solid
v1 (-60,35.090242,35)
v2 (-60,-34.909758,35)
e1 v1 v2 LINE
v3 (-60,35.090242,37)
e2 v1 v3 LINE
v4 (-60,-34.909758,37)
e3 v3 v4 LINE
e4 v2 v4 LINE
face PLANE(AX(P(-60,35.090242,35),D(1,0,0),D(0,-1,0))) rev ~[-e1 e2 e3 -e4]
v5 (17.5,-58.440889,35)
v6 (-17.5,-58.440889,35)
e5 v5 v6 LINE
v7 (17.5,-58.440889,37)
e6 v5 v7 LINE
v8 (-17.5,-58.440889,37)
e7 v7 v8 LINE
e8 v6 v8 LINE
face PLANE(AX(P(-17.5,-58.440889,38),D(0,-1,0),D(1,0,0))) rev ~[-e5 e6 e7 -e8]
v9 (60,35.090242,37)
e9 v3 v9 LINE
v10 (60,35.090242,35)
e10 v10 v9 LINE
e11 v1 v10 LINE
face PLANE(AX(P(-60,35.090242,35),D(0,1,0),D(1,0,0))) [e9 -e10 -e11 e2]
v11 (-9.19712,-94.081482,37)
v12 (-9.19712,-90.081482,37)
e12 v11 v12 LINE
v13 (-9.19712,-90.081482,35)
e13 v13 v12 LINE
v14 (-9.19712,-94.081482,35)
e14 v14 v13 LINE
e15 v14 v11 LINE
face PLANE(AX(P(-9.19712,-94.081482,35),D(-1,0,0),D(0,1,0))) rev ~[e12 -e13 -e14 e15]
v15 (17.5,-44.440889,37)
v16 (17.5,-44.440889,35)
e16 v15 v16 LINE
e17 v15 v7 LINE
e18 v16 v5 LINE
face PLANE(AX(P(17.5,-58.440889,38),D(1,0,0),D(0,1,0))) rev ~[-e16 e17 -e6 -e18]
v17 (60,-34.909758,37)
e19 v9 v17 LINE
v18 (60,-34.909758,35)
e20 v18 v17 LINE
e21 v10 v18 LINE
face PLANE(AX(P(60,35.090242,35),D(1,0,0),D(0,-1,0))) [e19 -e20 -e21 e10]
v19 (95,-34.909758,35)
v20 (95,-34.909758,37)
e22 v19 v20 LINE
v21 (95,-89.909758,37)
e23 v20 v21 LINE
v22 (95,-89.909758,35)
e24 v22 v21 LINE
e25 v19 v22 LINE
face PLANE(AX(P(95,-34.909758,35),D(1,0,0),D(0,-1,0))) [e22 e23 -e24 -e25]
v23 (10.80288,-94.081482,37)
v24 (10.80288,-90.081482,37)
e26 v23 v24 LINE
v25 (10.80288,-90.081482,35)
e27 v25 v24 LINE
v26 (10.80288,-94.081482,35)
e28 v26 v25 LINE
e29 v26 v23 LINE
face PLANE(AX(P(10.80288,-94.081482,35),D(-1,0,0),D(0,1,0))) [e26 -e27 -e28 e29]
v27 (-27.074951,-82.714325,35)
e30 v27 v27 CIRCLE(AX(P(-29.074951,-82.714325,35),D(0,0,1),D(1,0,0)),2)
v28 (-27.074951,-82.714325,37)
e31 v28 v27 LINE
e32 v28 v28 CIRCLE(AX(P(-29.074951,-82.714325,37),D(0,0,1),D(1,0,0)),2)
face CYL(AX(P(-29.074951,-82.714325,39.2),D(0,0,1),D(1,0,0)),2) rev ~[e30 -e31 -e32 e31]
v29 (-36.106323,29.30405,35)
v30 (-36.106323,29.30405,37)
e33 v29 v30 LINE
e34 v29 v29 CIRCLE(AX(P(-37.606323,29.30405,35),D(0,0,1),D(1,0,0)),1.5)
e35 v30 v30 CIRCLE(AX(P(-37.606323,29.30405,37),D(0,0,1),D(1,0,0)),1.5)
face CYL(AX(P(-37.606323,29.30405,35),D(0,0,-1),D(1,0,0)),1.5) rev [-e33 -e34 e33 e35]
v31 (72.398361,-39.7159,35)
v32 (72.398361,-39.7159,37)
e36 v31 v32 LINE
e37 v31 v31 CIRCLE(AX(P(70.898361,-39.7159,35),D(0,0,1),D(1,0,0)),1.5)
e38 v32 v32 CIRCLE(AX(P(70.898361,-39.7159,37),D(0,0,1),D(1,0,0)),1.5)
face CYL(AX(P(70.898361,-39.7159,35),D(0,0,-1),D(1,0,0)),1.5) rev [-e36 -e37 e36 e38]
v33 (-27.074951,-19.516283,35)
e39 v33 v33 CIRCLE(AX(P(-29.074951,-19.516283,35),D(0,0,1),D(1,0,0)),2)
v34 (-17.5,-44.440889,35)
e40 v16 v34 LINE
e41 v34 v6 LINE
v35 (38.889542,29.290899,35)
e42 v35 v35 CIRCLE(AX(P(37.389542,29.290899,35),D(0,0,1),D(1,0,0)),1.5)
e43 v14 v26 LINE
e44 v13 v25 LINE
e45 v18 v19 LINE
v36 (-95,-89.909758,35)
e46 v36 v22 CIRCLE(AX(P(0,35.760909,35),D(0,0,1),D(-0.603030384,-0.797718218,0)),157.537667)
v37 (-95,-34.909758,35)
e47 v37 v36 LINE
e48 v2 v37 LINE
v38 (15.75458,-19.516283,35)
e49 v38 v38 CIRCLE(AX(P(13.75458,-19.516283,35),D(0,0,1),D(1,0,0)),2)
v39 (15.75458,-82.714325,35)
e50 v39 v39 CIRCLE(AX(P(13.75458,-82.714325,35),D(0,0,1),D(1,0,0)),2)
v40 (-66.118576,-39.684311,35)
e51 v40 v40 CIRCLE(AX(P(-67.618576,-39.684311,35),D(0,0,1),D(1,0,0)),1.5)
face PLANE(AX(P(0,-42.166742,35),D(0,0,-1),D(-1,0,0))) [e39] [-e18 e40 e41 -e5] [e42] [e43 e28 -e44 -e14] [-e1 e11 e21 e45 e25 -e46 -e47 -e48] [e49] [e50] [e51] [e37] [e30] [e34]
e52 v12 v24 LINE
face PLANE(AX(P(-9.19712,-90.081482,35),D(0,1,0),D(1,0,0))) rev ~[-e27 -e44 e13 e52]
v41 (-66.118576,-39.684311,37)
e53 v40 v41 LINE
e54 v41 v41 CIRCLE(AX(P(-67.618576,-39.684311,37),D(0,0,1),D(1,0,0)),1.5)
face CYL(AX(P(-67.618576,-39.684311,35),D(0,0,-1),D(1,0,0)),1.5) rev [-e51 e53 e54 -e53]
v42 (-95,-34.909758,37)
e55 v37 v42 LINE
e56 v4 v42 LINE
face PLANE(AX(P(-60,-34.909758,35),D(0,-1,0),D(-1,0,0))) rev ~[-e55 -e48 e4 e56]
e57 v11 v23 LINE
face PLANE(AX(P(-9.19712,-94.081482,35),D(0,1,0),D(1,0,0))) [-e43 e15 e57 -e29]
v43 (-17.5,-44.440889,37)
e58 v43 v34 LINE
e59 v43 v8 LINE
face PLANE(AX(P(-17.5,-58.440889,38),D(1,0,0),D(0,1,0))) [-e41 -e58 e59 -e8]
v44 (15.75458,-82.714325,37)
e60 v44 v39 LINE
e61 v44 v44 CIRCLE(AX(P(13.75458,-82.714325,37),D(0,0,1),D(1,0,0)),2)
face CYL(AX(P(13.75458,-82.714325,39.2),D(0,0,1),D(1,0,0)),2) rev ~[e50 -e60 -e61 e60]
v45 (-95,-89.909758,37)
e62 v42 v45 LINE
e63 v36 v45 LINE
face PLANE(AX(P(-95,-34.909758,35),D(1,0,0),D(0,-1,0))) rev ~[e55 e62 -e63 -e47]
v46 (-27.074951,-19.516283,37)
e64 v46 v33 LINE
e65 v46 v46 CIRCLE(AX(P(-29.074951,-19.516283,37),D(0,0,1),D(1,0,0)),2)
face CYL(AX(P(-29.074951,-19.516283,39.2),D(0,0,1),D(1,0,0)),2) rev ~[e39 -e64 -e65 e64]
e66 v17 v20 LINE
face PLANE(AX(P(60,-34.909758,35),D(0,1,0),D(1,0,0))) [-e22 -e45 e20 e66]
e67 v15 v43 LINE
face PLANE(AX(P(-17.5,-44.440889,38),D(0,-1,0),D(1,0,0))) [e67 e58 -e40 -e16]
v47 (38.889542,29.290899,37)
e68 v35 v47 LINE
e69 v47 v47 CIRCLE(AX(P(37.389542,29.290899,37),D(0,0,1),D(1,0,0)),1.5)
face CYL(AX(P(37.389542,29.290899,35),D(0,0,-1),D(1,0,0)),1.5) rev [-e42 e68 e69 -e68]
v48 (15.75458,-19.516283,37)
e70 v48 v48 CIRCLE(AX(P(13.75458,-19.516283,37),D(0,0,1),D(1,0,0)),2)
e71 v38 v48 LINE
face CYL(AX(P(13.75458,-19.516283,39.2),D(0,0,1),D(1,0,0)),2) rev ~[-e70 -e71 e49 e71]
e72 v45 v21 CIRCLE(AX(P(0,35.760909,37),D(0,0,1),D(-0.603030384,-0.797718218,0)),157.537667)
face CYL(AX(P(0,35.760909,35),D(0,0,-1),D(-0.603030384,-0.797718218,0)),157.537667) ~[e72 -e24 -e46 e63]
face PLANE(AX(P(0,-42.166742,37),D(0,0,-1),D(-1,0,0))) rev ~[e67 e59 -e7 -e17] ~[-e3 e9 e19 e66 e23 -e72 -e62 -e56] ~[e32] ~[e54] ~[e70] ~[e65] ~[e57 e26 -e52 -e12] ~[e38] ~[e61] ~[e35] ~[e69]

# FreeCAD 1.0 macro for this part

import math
import FreeCAD as App
import Part
import Sketcher
from FreeCAD import Vector
Q = App.Units.Quantity


def add_polygon(sketch, points):
    """Adds a closed chain of lines whose ends are joined by coincident constraints."""
    first, n = sketch.GeometryCount, len(points)
    for a, b in zip(points, points[1:] + points[:1]):
        sketch.addGeometry(Part.LineSegment(App.Vector(*a, 0), App.Vector(*b, 0)), False)
    for i in range(n):
        sketch.addConstraint(Sketcher.Constraint("Coincident", first + i, 2, first + (i + 1) % n, 1))

doc = App.newDocument("Part")
body = doc.addObject("PartDesign::Body", "Body")
body.AllowCompound = True

# Sketch on XY plane
sketch1 = body.newObject("Sketcher::SketchObject", "Sketch")
sketch1.AttachmentSupport = (doc.getObject("XY_Plane"), [""])
sketch1.MapMode = "FlatFace"
sketch1.AttachmentOffset = App.Placement(Vector(0, 0, 39.2), App.Rotation())
sketch1.addGeometry([
    Part.Circle(Vector(-29.1, -82.7, 0), Vector(0, 0, 1), 2),
    Part.Circle(Vector(13.8, -82.7, 0), Vector(0, 0, 1), 2),
    Part.Circle(Vector(-29.1, -19.5, 0), Vector(0, 0, 1), 2),
    Part.Circle(Vector(13.8, -19.5, 0), Vector(0, 0, 1), 2),
], False)
sketch1.addConstraint([
    Sketcher.Constraint("Equal", 0, 1),
    Sketcher.Constraint("Equal", 1, 2),
    Sketcher.Constraint("Equal", 2, 3),
    Sketcher.Constraint("Horizontal", 0, 3, 1, 3),
    Sketcher.Constraint("Horizontal", 2, 3, 3, 3),
    Sketcher.Constraint("Vertical", 0, 3, 2, 3),
    Sketcher.Constraint("Vertical", 1, 3, 3, 3),
    Sketcher.Constraint("Diameter", 0, Q("4 mm")),
    Sketcher.Constraint("DistanceX", 0, 3, -1, 1, Q("29.074951 mm")),
    Sketcher.Constraint("DistanceX", -1, 1, 1, 3, Q("13.75458 mm")),
    Sketcher.Constraint("DistanceY", 0, 3, -1, 1, Q("82.714325 mm")),
    Sketcher.Constraint("DistanceY", 2, 3, -1, 1, Q("19.516283 mm")),
])
pad1 = body.newObject("PartDesign::Pad", "Pad")
pad1.Profile = sketch1
pad1.Length = 30
pad1.Midplane = True
body2 = doc.addObject("PartDesign::Body", "Body001")

# Sketch on XY plane
sketch2 = body2.newObject("Sketcher::SketchObject", "Sketch001")
sketch2.AttachmentSupport = (doc.getObject("XY_Plane001"), [""])
sketch2.MapMode = "FlatFace"
sketch2.AttachmentOffset = App.Placement(Vector(0, 0, 38), App.Rotation())
add_polygon(sketch2, [(-18, -44), (-18, -58), (18, -58), (18, -44)])  # lines 0-3
sketch2.addConstraint([
    Sketcher.Constraint("Vertical", 0),
    Sketcher.Constraint("Horizontal", 1),
    Sketcher.Constraint("Vertical", 2),
    Sketcher.Constraint("Horizontal", 3),
    Sketcher.Constraint("DistanceX", 1, 1, 1, 2, Q("35 mm")),
    Sketcher.Constraint("DistanceY", 0, 2, 0, 1, Q("14 mm")),
    Sketcher.Constraint("DistanceX", 0, 2, -1, 1, Q("17.5 mm")),
    Sketcher.Constraint("DistanceY", 0, 2, -1, 1, Q("58.440889 mm")),
])
pad2 = body2.newObject("PartDesign::Pad", "Pad001")
pad2.Profile = sketch2
pad2.Length = 30
pad2.Midplane = True
body3 = doc.addObject("PartDesign::Body", "Body002")

# Sketch on XY plane
sketch3 = body3.newObject("Sketcher::SketchObject", "Sketch002")
sketch3.AttachmentSupport = (doc.getObject("XY_Plane002"), [""])
sketch3.MapMode = "FlatFace"
sketch3.AttachmentOffset = App.Placement(Vector(0, 0, 35), App.Rotation())
sketch3.addGeometry(Part.LineSegment(Vector(60, 35.1, 0), Vector(-60, 35.1, 0)), False)  # 0
sketch3.addGeometry(Part.LineSegment(Vector(-60, 35.1, 0), Vector(-60, -34.9, 0)), False)  # 1
sketch3.addGeometry(Part.LineSegment(Vector(-60, -34.9, 0), Vector(-95, -34.9, 0)), False)  # 2
sketch3.addGeometry(Part.LineSegment(Vector(-95, -34.9, 0), Vector(-95, -89.9, 0)), False)  # 3
sketch3.addGeometry(Part.ArcOfCircle(Part.Circle(Vector(0, 35.8, 0), Vector(0, 0, 1), 157.5), math.radians(-127), math.radians(-53)), False)  # 4
sketch3.addGeometry(Part.LineSegment(Vector(95, -89.9, 0), Vector(95, -34.9, 0)), False)  # 5
sketch3.addGeometry(Part.LineSegment(Vector(95, -34.9, 0), Vector(60, -34.9, 0)), False)  # 6
sketch3.addGeometry(Part.LineSegment(Vector(60, -34.9, 0), Vector(60, 35.1, 0)), False)  # 7
sketch3.addGeometry(Part.Circle(Vector(70.9, -39.7, 0), Vector(0, 0, 1), 1.5), False)  # 8
add_polygon(sketch3, [(-9.2, -94.1), (-9.2, -90.1), (10.8, -90.1), (10.8, -94.1)])  # lines 9-12
sketch3.addGeometry(Part.Circle(Vector(-67.6, -39.7, 0), Vector(0, 0, 1), 1.5), False)  # 13
sketch3.addGeometry(Part.Circle(Vector(37.4, 29.3, 0), Vector(0, 0, 1), 1.5), False)  # 14
sketch3.addGeometry(Part.Circle(Vector(-37.6, 29.3, 0), Vector(0, 0, 1), 1.5), False)  # 15
sketch3.addConstraint([
    Sketcher.Constraint("Coincident", 0, 2, 1, 1),
    Sketcher.Constraint("Coincident", 1, 2, 2, 1),
    Sketcher.Constraint("Coincident", 2, 2, 3, 1),
    Sketcher.Constraint("Coincident", 3, 2, 4, 1),
    Sketcher.Constraint("Coincident", 4, 2, 5, 1),
    Sketcher.Constraint("Coincident", 5, 2, 6, 1),
    Sketcher.Constraint("Coincident", 6, 2, 7, 1),
    Sketcher.Constraint("Coincident", 7, 2, 0, 1),
    Sketcher.Constraint("Horizontal", 0),
    Sketcher.Constraint("Vertical", 1),
    Sketcher.Constraint("Horizontal", 2),
    Sketcher.Constraint("Vertical", 3),
    Sketcher.Constraint("Vertical", 5),
    Sketcher.Constraint("Horizontal", 6),
    Sketcher.Constraint("Vertical", 7),
    Sketcher.Constraint("Vertical", 9),
    Sketcher.Constraint("Horizontal", 10),
    Sketcher.Constraint("Vertical", 11),
    Sketcher.Constraint("Horizontal", 12),
    Sketcher.Constraint("Equal", 8, 13),
    Sketcher.Constraint("Equal", 13, 14),
    Sketcher.Constraint("Equal", 14, 15),
    Sketcher.Constraint("Symmetric", 3, 2, 4, 2, -2),
    Sketcher.Constraint("Symmetric", 1, 2, 6, 2, -2),
    Sketcher.Constraint("Diameter", 8, Q("3 mm")),
    Sketcher.Constraint("DistanceX", 0, 2, 0, 1, Q("120 mm")),
    Sketcher.Constraint("DistanceX", 2, 2, 2, 1, Q("35 mm")),
    Sketcher.Constraint("DistanceX", 10, 1, 10, 2, Q("20 mm")),
    Sketcher.Constraint("DistanceY", 1, 2, 1, 1, Q("70 mm")),
    Sketcher.Constraint("DistanceY", 3, 2, 3, 1, Q("55 mm")),
    Sketcher.Constraint("DistanceY", 9, 1, 9, 2, Q("4 mm")),
    Sketcher.Constraint("Radius", 4, Q("157.537667 mm")),
    Sketcher.Constraint("DistanceY", 8, 3, -1, 1, Q("39.7159 mm")),
    Sketcher.Constraint("DistanceY", -1, 1, 14, 3, Q("29.290899 mm")),
    Sketcher.Constraint("DistanceY", -1, 1, 4, 3, Q("35.760909 mm")),
    Sketcher.Constraint("DistanceX", -1, 1, 8, 3, Q("70.898361 mm")),
    Sketcher.Constraint("DistanceY", 13, 3, -1, 1, Q("39.684311 mm")),
    Sketcher.Constraint("DistanceY", -1, 1, 15, 3, Q("29.30405 mm")),
    Sketcher.Constraint("DistanceX", 9, 2, -1, 1, Q("9.19712 mm")),
    Sketcher.Constraint("DistanceY", 9, 2, -1, 1, Q("90.081482 mm")),
    Sketcher.Constraint("DistanceX", 14, 3, 8, 3, Q("33.508819 mm")),
    Sketcher.Constraint("DistanceX", 13, 3, -1, 1, Q("67.618576 mm")),
    Sketcher.Constraint("DistanceX", 15, 3, -1, 1, Q("37.606323 mm")),
])
pad3 = body3.newObject("PartDesign::Pad", "Pad002")
pad3.Profile = sketch3
pad3.Length = 2
doc.recompute()

boolean = body3.newObject("PartDesign::Boolean", "Boolean")
boolean.Type = "Cut"
boolean.addObjects([body2])
doc.recompute()

boolean2 = body3.newObject("PartDesign::Boolean", "Boolean001")
boolean2.Type = "Cut"
boolean2.addObjects([body])

doc.recompute()
